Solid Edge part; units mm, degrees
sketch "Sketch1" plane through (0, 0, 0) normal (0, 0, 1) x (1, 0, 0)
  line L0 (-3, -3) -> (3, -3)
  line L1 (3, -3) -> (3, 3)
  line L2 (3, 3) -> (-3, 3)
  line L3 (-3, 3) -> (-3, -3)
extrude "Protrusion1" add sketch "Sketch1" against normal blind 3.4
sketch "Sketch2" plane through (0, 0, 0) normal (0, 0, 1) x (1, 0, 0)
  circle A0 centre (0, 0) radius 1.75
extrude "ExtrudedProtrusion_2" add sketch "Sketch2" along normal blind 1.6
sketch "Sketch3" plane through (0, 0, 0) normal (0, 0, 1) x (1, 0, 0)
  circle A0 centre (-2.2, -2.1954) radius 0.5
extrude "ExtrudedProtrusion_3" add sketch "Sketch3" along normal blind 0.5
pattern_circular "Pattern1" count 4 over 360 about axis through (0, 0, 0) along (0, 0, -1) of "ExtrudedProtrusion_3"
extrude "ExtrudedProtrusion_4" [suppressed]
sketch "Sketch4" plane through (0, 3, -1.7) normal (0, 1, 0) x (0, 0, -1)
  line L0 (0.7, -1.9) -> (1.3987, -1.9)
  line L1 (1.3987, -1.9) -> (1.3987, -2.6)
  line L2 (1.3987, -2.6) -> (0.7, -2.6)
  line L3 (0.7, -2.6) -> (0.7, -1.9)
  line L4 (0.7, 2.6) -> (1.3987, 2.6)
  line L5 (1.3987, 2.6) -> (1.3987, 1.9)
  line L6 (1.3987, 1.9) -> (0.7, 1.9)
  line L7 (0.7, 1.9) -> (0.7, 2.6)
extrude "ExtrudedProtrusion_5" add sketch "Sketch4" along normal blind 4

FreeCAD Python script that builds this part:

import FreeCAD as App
import Part
import Sketcher
from FreeCAD import Vector

doc = App.newDocument("Part")
body = doc.addObject("PartDesign::Body", "Body")

# Sketch on XY plane
sketch1 = body.newObject("Sketcher::SketchObject", "Sketch")
sketch1.AttachmentSupport = (doc.getObject("XY_Plane"), [""])
sketch1.MapMode = "FlatFace"
sketch1.addGeometry(Part.LineSegment(Vector(-3, 3, 0), Vector(-3, -3, 0)), False)
sketch1.addGeometry(Part.LineSegment(Vector(-3, -3, 0), Vector(3, -3, 0)), False)
sketch1.addGeometry(Part.LineSegment(Vector(3, -3, 0), Vector(3, 3, 0)), False)
sketch1.addGeometry(Part.LineSegment(Vector(3, 3, 0), Vector(-3, 3, 0)), False)
sketch1.addConstraint(Sketcher.Constraint("Coincident", 0, 2, 1, 1))
sketch1.addConstraint(Sketcher.Constraint("Coincident", 1, 2, 2, 1))
sketch1.addConstraint(Sketcher.Constraint("Coincident", 2, 2, 3, 1))
sketch1.addConstraint(Sketcher.Constraint("Coincident", 3, 2, 0, 1))
sketch1.addConstraint(Sketcher.Constraint("Vertical", 0))
sketch1.addConstraint(Sketcher.Constraint("Horizontal", 1))
sketch1.addConstraint(Sketcher.Constraint("Vertical", 2))
sketch1.addConstraint(Sketcher.Constraint("Horizontal", 3))
sketch1.addConstraint(Sketcher.Constraint("Symmetric", 0, 2, 2, 2, -1, 1))
sketch1.addConstraint(Sketcher.Constraint("Equal", 3, 0))
sketch1.addConstraint(Sketcher.Constraint("DistanceX", 1, 1, 1, 2, 6.0))
pad1 = body.newObject("PartDesign::Pad", "Pad")
pad1.Profile = sketch1
pad1.Length = 3.4
pad1.Reversed = True

# Sketch on XY plane
sketch2 = body.newObject("Sketcher::SketchObject", "Sketch001")
sketch2.AttachmentSupport = (doc.getObject("XY_Plane"), [""])
sketch2.MapMode = "FlatFace"
sketch2.addGeometry(Part.Circle(Vector(0, 0, 0), Vector(0, 0, 1), 1.8), False)
sketch2.addConstraint(Sketcher.Constraint("Coincident", 0, 3, -1, 1))
sketch2.addConstraint(Sketcher.Constraint("Diameter", 0, 3.5))
pad2 = body.newObject("PartDesign::Pad", "Pad001")
pad2.Profile = sketch2
pad2.Length = 1.6

# Sketch on XY plane
sketch3 = body.newObject("Sketcher::SketchObject", "Sketch002")
sketch3.AttachmentSupport = (doc.getObject("XY_Plane"), [""])
sketch3.MapMode = "FlatFace"
sketch3.addGeometry(Part.Circle(Vector(-2.2, -2.2, 0), Vector(0, 0, 1), 0.5), False)
sketch3.addConstraint(Sketcher.Constraint("Diameter", 0, 1.0))
sketch3.addConstraint(Sketcher.Constraint("DistanceX", 0, 3, -1, 1, 2.2))
sketch3.addConstraint(Sketcher.Constraint("DistanceY", 0, 3, -1, 1, 2.1954))
pad3 = body.newObject("PartDesign::Pad", "Pad002")
pad3.Profile = sketch3
pad3.Length = 0.5
doc.recompute()

polarpattern = body.newObject("PartDesign::PolarPattern", "PolarPattern")
polarpattern.Originals = [pad3]
polarpattern.Axis = (doc.getObject("Z_Axis"), [""])
polarpattern.Angle = 360
polarpattern.Occurrences = 4
body.Tip = polarpattern

# Sketch on XZ plane
sketch4 = body.newObject("Sketcher::SketchObject", "Sketch003")
sketch4.AttachmentSupport = (doc.getObject("XZ_Plane"), [""])
sketch4.MapMode = "FlatFace"
sketch4.AttachmentOffset = App.Placement(Vector(0, 0, -3), App.Rotation())
sketch4.addGeometry(Part.LineSegment(Vector(1.9, -3.1, 0), Vector(1.9, -2.4, 0)), False)
sketch4.addGeometry(Part.LineSegment(Vector(1.9, -2.4, 0), Vector(2.6, -2.4, 0)), False)
sketch4.addGeometry(Part.LineSegment(Vector(2.6, -2.4, 0), Vector(2.6, -3.1, 0)), False)
sketch4.addGeometry(Part.LineSegment(Vector(2.6, -3.1, 0), Vector(1.9, -3.1, 0)), False)
sketch4.addGeometry(Part.LineSegment(Vector(-2.6, -3.1, 0), Vector(-2.6, -2.4, 0)), False)
sketch4.addGeometry(Part.LineSegment(Vector(-2.6, -2.4, 0), Vector(-1.9, -2.4, 0)), False)
sketch4.addGeometry(Part.LineSegment(Vector(-1.9, -2.4, 0), Vector(-1.9, -3.1, 0)), False)
sketch4.addGeometry(Part.LineSegment(Vector(-1.9, -3.1, 0), Vector(-2.6, -3.1, 0)), False)
sketch4.addConstraint(Sketcher.Constraint("Coincident", 0, 2, 1, 1))
sketch4.addConstraint(Sketcher.Constraint("Coincident", 1, 2, 2, 1))
sketch4.addConstraint(Sketcher.Constraint("Coincident", 2, 2, 3, 1))
sketch4.addConstraint(Sketcher.Constraint("Coincident", 3, 2, 0, 1))
sketch4.addConstraint(Sketcher.Constraint("Coincident", 4, 2, 5, 1))
sketch4.addConstraint(Sketcher.Constraint("Coincident", 5, 2, 6, 1))
sketch4.addConstraint(Sketcher.Constraint("Coincident", 6, 2, 7, 1))
sketch4.addConstraint(Sketcher.Constraint("Coincident", 7, 2, 4, 1))
sketch4.addConstraint(Sketcher.Constraint("Vertical", 0))
sketch4.addConstraint(Sketcher.Constraint("Horizontal", 1))
sketch4.addConstraint(Sketcher.Constraint("Vertical", 2))
sketch4.addConstraint(Sketcher.Constraint("Horizontal", 3))
sketch4.addConstraint(Sketcher.Constraint("Vertical", 4))
sketch4.addConstraint(Sketcher.Constraint("Horizontal", 5))
sketch4.addConstraint(Sketcher.Constraint("Vertical", 6))
sketch4.addConstraint(Sketcher.Constraint("Horizontal", 7))
sketch4.addConstraint(Sketcher.Constraint("Symmetric", 1, 2, 4, 2, -2))
sketch4.addConstraint(Sketcher.Constraint("Symmetric", 3, 2, 6, 2, -2))
sketch4.addConstraint(Sketcher.Constraint("DistanceX", 1, 1, 1, 2, 0.7))
sketch4.addConstraint(Sketcher.Constraint("DistanceX", -1, 1, 0, 2, 1.9))
sketch4.addConstraint(Sketcher.Constraint("DistanceY", 0, 2, -1, 1, 2.4))
sketch4.addConstraint(Sketcher.Constraint("DistanceY", 0, 1, 0, 2, 0.6987))
pad4 = body.newObject("PartDesign::Pad", "Pad003")
pad4.Profile = sketch4
pad4.Length = 4
pad4.Reversed = True

doc.recompute()
